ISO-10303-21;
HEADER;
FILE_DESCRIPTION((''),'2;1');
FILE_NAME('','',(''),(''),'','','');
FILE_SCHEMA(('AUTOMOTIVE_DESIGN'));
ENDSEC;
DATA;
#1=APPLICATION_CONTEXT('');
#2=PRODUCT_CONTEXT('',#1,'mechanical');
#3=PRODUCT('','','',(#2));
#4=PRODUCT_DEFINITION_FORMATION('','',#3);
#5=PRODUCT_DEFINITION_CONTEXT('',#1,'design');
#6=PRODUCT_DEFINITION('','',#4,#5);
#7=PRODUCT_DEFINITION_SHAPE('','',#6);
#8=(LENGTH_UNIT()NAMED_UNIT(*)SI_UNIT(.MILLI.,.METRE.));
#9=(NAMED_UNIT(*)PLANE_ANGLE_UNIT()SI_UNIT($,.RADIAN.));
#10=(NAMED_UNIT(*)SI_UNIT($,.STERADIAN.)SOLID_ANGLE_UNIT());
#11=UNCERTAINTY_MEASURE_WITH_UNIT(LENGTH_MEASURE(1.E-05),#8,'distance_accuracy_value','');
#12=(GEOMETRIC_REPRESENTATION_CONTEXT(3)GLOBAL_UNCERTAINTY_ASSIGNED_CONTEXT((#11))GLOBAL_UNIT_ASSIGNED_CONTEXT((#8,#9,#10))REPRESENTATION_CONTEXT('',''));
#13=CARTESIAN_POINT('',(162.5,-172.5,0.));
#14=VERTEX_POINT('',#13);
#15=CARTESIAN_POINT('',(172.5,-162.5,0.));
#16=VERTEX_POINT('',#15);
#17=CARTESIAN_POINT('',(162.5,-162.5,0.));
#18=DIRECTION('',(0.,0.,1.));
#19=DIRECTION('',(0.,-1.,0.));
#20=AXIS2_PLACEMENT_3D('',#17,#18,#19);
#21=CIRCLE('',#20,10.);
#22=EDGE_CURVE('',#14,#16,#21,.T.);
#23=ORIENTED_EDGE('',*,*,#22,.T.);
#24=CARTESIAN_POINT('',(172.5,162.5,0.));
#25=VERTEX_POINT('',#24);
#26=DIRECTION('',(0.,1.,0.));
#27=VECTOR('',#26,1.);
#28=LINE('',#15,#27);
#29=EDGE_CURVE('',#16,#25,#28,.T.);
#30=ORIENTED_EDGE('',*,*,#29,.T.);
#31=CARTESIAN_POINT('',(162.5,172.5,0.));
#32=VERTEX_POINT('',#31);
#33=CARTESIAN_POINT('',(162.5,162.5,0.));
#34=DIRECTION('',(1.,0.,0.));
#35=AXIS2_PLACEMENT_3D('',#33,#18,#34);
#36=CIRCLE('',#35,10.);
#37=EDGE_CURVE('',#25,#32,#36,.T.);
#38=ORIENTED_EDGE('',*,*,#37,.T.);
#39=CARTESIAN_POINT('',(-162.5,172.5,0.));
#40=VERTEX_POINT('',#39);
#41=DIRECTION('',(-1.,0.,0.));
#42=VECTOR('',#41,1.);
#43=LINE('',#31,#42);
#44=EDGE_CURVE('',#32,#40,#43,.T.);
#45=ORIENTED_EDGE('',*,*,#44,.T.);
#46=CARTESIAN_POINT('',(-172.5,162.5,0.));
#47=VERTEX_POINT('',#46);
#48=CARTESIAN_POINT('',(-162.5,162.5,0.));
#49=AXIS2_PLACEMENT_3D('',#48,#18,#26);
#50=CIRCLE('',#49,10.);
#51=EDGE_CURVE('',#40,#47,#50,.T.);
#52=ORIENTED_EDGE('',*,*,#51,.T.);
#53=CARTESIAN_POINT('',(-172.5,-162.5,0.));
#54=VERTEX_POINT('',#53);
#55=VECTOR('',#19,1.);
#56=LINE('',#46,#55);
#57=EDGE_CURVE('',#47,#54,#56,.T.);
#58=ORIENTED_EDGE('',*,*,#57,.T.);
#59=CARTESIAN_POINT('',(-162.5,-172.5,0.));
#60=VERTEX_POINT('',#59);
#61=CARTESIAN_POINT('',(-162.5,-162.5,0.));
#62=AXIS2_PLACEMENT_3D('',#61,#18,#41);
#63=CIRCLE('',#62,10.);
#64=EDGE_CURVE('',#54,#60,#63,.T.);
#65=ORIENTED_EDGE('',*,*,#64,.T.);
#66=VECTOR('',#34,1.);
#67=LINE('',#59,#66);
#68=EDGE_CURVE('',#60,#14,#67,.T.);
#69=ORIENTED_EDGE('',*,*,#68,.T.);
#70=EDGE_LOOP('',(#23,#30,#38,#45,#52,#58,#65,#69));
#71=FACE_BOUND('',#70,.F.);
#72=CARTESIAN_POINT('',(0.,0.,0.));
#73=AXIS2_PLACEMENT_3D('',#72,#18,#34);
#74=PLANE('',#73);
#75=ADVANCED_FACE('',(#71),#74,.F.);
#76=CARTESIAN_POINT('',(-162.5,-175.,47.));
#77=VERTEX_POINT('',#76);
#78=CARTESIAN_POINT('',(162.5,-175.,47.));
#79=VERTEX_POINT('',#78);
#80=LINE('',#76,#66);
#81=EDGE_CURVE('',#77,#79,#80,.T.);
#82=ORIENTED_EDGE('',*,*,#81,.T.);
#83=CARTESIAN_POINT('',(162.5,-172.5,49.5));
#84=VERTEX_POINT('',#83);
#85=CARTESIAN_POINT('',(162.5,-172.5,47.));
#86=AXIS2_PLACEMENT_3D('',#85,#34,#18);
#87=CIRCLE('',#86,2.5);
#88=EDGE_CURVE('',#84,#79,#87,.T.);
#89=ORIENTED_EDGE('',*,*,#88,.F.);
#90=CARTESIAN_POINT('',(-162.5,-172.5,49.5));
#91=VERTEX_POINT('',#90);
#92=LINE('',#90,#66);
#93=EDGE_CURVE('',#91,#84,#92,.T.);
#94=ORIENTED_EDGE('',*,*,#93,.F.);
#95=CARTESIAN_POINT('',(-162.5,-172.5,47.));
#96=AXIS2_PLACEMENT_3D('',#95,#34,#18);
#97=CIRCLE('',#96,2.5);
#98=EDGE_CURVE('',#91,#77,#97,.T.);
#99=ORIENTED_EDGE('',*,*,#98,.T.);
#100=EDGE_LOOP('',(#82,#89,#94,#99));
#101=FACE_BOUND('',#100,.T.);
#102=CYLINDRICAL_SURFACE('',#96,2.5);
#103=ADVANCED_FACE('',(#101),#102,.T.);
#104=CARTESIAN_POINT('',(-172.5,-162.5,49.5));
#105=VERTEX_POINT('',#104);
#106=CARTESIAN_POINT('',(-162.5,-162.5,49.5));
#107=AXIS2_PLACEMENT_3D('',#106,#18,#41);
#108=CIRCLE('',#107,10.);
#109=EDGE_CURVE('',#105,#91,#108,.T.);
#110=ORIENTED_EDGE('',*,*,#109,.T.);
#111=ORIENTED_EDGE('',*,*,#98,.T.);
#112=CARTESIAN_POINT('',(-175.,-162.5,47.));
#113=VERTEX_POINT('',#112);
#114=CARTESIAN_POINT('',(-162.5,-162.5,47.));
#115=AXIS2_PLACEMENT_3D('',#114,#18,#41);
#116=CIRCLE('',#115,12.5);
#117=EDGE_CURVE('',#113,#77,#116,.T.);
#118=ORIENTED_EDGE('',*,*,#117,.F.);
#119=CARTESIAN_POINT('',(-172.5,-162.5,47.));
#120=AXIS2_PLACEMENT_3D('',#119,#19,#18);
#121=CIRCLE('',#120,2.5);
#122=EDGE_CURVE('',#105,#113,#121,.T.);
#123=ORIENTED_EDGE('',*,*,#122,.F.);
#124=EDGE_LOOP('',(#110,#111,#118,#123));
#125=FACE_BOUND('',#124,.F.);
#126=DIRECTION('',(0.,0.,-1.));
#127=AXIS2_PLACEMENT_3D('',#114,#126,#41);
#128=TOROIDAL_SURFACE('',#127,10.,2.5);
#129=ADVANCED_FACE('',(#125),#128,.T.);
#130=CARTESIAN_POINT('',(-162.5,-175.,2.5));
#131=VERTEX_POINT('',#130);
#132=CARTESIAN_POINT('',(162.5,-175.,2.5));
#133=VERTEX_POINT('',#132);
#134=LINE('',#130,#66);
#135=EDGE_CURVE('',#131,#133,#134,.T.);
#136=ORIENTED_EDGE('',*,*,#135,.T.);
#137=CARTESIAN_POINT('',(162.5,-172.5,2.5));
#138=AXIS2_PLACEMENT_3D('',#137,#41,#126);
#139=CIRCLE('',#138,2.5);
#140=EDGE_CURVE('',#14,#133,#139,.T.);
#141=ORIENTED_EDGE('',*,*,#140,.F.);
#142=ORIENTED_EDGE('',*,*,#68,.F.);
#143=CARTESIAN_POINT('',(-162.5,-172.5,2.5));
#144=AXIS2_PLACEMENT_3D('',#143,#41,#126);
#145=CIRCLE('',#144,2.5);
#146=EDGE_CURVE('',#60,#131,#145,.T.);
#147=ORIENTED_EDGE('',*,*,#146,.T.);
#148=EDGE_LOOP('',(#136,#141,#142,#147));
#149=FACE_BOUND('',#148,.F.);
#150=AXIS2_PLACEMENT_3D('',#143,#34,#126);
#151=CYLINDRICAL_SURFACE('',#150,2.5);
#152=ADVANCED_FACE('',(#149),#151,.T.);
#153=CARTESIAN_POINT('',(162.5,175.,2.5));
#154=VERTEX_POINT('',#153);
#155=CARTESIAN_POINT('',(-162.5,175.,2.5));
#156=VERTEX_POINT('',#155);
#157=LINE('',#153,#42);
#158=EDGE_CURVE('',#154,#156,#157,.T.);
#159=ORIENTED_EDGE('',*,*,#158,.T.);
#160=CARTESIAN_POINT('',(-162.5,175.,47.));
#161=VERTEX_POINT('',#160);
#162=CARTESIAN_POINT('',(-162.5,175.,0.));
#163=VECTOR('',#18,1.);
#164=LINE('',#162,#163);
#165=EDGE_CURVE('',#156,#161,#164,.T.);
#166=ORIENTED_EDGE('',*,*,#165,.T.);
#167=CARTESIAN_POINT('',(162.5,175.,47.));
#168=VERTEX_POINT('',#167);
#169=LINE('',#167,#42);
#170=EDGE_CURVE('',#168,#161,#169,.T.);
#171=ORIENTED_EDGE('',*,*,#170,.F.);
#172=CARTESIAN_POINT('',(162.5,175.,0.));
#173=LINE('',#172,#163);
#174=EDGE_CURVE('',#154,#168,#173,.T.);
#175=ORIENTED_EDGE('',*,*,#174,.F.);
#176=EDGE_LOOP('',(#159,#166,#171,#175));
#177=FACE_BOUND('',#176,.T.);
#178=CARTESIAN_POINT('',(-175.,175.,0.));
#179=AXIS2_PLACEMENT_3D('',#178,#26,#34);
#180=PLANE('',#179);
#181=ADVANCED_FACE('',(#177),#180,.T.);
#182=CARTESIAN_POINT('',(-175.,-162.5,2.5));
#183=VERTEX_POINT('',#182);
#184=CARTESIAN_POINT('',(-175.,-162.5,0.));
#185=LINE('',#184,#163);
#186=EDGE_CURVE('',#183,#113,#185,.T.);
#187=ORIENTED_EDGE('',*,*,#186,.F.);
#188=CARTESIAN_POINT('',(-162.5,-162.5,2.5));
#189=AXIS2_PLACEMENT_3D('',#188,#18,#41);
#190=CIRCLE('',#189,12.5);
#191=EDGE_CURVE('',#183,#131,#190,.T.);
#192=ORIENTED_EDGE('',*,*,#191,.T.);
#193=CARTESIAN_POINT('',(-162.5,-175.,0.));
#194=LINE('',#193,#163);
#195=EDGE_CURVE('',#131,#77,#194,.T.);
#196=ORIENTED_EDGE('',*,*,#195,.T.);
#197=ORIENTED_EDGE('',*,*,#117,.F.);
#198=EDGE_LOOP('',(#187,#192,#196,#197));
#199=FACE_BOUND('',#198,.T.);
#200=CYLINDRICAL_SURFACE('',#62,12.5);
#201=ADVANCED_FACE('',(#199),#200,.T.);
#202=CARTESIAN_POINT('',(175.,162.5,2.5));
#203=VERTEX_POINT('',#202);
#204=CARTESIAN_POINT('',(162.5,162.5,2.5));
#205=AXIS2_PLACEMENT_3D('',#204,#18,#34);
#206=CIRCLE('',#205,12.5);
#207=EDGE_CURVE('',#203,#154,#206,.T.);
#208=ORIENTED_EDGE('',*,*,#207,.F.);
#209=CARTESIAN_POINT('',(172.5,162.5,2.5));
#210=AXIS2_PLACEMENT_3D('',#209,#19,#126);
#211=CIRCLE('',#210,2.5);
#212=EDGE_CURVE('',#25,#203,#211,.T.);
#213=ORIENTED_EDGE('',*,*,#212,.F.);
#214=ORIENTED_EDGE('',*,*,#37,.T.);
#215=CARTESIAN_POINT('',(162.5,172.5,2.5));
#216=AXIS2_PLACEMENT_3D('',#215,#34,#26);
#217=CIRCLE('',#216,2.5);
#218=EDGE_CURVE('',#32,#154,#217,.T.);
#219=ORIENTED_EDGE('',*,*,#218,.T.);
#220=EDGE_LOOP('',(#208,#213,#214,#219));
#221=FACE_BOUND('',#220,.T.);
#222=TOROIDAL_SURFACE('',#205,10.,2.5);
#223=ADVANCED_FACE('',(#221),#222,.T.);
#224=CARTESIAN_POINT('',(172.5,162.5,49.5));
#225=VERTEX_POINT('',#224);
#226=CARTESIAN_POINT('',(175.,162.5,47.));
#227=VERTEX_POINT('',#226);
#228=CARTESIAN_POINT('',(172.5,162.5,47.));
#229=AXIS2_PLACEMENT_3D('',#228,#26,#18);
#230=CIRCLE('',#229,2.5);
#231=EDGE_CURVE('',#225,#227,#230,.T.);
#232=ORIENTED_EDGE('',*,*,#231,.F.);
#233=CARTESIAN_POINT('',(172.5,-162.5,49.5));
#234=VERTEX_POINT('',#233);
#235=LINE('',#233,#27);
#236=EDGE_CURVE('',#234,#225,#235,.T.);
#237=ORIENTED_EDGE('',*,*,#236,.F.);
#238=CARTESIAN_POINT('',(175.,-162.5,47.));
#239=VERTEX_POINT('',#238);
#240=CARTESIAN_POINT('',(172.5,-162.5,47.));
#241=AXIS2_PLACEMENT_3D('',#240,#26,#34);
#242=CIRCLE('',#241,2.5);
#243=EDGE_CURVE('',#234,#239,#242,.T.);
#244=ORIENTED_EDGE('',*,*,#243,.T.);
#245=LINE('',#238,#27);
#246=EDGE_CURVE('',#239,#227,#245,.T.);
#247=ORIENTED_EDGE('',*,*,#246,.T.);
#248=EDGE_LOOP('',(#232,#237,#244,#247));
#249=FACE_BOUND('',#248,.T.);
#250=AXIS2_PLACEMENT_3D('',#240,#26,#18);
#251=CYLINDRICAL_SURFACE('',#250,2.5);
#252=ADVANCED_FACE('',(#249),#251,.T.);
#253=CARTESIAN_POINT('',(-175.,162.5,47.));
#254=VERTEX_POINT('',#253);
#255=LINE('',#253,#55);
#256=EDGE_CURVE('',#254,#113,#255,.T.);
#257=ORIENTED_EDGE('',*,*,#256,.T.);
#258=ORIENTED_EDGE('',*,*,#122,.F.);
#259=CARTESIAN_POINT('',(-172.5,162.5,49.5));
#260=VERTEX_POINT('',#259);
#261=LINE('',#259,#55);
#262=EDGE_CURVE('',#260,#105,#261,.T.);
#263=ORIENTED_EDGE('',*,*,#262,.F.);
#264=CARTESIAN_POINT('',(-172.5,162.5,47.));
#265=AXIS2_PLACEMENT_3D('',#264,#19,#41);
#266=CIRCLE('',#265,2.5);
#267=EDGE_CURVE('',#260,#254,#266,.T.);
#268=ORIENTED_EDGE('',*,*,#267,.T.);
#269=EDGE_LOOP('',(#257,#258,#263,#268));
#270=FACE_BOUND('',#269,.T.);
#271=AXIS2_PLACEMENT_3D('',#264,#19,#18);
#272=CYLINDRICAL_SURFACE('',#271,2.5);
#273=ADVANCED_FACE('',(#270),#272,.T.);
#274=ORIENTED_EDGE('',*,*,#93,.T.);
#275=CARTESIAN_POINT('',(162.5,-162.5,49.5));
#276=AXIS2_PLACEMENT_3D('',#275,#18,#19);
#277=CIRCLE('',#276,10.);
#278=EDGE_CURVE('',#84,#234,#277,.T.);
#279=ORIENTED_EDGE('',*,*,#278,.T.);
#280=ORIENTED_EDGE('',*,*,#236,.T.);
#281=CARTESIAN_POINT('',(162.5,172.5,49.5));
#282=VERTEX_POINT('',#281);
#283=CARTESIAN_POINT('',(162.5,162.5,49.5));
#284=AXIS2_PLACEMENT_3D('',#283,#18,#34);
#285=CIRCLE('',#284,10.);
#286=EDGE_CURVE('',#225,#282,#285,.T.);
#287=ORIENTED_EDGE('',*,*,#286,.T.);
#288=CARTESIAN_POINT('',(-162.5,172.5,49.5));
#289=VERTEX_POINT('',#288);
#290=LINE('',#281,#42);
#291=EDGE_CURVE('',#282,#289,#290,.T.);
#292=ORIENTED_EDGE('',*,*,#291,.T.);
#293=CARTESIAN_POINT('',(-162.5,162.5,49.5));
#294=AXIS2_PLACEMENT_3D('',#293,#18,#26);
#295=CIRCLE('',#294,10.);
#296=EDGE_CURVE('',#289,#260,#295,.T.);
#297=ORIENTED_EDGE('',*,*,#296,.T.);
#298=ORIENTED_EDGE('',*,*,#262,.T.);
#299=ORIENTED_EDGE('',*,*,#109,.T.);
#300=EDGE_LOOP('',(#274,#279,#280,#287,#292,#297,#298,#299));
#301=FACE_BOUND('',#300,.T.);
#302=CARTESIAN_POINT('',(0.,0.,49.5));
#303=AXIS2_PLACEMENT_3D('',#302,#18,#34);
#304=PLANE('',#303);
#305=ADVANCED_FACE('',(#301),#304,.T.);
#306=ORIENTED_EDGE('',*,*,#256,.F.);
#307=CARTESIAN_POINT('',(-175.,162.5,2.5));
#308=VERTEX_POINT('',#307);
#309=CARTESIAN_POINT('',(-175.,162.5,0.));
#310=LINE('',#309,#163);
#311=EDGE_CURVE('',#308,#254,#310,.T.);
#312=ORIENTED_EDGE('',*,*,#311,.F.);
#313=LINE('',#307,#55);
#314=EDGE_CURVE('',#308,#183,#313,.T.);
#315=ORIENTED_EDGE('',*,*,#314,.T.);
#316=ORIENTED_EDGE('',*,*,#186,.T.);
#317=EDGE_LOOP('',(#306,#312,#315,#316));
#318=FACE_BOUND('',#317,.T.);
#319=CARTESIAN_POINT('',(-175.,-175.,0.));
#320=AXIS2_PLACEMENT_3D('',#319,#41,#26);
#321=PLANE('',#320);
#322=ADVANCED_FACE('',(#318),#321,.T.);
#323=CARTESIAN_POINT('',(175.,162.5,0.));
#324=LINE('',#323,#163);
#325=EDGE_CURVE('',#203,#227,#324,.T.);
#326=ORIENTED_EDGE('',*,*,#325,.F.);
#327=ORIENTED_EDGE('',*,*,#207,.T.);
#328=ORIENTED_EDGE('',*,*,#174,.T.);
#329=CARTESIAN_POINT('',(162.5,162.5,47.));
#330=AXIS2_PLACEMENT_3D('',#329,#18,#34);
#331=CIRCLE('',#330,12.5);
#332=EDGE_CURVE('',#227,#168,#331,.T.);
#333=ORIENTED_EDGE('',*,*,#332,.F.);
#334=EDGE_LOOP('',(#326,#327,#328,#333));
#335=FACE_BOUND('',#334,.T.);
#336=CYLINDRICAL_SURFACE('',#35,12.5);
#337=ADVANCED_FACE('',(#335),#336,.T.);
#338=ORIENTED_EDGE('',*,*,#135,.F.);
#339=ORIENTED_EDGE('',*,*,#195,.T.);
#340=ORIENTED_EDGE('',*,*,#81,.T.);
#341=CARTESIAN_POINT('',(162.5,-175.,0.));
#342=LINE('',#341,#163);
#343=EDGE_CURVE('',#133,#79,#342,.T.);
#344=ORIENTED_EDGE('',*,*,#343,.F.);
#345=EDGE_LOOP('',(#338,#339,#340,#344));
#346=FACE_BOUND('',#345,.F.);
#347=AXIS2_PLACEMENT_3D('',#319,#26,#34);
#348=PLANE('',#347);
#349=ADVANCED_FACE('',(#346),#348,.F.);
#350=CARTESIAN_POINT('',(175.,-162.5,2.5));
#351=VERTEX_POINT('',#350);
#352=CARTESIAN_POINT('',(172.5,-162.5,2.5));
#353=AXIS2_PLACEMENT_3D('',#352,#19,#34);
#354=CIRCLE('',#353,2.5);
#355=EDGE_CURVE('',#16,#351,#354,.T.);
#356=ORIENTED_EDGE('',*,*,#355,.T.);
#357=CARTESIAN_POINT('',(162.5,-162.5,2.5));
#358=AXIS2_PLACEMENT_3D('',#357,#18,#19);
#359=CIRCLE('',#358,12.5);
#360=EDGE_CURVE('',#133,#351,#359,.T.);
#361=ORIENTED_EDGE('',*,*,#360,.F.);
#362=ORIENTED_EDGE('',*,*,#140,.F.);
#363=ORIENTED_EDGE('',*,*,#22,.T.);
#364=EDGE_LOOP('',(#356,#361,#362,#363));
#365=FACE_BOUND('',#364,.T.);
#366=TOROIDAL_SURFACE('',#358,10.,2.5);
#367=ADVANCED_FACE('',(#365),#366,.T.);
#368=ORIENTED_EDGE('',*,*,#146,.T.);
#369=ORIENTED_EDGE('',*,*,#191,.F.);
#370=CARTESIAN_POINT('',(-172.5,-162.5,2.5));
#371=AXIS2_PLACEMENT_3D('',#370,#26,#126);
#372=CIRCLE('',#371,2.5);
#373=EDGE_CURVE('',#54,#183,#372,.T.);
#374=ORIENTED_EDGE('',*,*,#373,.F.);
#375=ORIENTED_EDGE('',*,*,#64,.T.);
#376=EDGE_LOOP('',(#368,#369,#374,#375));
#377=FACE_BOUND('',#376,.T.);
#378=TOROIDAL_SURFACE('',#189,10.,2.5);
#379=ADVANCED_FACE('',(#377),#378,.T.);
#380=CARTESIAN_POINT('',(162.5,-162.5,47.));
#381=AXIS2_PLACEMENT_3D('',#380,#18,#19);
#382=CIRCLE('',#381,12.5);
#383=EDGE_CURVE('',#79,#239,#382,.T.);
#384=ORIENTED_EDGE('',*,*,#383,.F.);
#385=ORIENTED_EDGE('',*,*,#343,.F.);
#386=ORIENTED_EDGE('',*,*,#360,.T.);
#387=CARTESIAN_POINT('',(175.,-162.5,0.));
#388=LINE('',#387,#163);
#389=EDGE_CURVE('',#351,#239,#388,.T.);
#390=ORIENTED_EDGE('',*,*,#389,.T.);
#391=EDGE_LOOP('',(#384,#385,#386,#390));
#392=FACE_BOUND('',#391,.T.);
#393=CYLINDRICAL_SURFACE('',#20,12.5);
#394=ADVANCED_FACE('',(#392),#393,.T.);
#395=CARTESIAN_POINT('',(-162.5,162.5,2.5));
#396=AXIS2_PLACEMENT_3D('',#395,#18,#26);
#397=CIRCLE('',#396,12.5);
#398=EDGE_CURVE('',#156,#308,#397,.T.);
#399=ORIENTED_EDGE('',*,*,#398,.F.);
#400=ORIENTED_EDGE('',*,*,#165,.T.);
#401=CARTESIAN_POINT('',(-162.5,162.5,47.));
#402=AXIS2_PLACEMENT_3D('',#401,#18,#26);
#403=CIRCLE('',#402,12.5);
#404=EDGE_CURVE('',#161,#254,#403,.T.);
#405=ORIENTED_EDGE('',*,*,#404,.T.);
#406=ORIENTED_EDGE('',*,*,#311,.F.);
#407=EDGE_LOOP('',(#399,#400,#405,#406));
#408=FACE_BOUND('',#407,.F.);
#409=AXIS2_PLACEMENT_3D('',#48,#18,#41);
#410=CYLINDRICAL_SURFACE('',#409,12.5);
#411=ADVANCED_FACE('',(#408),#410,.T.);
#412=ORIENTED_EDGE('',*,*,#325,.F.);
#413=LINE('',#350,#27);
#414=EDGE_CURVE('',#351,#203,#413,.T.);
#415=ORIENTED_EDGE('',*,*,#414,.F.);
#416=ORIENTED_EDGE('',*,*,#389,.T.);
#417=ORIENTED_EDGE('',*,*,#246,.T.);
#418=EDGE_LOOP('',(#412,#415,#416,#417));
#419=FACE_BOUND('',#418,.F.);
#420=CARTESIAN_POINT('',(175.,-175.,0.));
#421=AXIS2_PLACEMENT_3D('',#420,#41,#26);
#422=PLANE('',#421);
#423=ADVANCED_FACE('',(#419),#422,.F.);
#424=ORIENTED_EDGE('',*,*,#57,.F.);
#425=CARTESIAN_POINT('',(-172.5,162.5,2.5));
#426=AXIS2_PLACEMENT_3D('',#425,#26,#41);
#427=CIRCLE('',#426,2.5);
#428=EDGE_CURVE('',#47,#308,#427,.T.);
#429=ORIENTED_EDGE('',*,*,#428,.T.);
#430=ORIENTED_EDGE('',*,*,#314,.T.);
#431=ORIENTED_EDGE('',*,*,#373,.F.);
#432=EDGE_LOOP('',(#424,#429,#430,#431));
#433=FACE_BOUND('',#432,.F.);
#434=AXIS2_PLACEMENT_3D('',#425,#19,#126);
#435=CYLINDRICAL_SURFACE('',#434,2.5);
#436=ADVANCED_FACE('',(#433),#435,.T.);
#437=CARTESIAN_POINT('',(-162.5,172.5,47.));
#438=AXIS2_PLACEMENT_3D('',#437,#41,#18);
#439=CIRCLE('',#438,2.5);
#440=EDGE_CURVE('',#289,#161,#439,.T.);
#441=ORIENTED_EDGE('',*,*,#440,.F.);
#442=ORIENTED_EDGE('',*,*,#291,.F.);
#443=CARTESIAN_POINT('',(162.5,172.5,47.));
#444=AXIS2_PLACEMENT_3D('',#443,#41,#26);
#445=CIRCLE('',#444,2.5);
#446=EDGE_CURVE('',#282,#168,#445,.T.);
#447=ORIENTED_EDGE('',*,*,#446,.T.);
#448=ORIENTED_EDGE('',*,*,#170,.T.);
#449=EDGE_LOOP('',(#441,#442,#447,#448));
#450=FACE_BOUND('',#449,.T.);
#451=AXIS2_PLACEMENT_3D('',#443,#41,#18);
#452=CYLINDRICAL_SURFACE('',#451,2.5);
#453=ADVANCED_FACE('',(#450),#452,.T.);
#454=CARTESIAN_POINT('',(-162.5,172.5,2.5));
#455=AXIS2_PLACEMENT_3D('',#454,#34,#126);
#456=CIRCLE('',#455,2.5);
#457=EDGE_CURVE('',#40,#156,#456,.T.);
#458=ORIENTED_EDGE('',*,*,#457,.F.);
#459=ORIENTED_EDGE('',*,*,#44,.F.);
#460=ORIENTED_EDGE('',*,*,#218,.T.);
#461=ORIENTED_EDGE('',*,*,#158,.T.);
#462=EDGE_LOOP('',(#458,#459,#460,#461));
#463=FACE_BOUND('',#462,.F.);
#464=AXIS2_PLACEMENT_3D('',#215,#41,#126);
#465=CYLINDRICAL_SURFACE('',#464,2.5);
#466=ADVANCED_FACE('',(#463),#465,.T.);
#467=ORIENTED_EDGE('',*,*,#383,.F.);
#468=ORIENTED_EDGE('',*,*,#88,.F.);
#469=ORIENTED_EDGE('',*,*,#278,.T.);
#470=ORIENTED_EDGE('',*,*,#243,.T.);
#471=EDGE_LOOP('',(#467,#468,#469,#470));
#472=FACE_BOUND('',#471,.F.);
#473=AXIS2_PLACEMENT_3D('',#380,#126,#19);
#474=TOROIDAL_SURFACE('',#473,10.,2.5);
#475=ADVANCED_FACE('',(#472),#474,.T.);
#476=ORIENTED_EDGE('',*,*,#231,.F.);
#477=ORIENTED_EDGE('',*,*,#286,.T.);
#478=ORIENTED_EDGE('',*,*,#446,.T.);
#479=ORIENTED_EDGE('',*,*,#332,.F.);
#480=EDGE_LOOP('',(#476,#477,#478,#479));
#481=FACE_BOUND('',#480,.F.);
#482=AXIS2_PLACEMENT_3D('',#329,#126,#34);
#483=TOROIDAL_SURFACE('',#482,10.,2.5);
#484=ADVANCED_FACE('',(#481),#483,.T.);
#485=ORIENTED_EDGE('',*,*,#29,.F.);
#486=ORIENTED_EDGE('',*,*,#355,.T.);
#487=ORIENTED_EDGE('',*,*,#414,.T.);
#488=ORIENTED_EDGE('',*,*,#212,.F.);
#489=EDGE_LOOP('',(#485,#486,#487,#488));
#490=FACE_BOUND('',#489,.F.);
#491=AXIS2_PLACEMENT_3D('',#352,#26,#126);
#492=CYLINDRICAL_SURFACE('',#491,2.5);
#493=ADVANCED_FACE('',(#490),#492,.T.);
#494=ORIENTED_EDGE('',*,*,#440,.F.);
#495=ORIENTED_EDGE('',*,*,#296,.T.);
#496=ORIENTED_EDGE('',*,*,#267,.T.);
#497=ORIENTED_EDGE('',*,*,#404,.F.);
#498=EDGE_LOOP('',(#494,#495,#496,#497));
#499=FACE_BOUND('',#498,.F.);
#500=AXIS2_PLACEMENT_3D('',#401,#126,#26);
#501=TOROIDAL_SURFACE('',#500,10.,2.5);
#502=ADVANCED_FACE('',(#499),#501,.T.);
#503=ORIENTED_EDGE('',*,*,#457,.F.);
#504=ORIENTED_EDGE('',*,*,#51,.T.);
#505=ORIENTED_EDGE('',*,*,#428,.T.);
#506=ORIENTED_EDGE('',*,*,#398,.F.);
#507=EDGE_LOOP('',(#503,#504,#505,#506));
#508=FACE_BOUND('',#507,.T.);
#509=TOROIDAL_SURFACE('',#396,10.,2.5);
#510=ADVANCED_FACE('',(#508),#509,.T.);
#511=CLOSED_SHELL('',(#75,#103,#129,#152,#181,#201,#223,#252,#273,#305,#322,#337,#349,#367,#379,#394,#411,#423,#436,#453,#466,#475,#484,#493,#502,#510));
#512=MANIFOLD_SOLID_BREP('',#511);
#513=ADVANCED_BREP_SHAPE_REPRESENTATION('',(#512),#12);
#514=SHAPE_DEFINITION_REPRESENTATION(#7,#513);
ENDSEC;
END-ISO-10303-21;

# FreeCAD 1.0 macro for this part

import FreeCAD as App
import Part
import Sketcher

V = App.Vector
Q = App.Units.Quantity


def edges_at(feature, points):
    """Names of the edges that pass closest to the given points."""
    edges = feature.Shape.Edges
    near = lambda p: min(range(len(edges)), key=lambda i: edges[i].distToShape(Part.Vertex(*p))[0])
    return sorted({f"Edge{near(p) + 1}" for p in points})

doc = App.newDocument("Part")
body = doc.addObject("PartDesign::Body", "Body")

# Sketch on XY plane
sketch1 = doc.addObject("Sketcher::SketchObject", "Sketch")
body.addObject(sketch1)
sketch1.AttachmentSupport = (doc.XY_Plane, [""])
sketch1.MapMode = "FlatFace"
sketch1.addGeometry(Part.LineSegment(V(-175, 175, 0), V(-175, -175, 0)), False)
sketch1.addGeometry(Part.LineSegment(V(-175, -175, 0), V(175, -175, 0)), False)
sketch1.addGeometry(Part.LineSegment(V(175, -175, 0), V(175, 175, 0)), False)
sketch1.addGeometry(Part.LineSegment(V(175, 175, 0), V(-175, 175, 0)), False)
sketch1.addConstraint(Sketcher.Constraint("Coincident", 0, 2, 1, 1))
sketch1.addConstraint(Sketcher.Constraint("Coincident", 1, 2, 2, 1))
sketch1.addConstraint(Sketcher.Constraint("Coincident", 2, 2, 3, 1))
sketch1.addConstraint(Sketcher.Constraint("Coincident", 3, 2, 0, 1))
sketch1.addConstraint(Sketcher.Constraint("Vertical", 0))
sketch1.addConstraint(Sketcher.Constraint("Horizontal", 1))
sketch1.addConstraint(Sketcher.Constraint("Vertical", 2))
sketch1.addConstraint(Sketcher.Constraint("Horizontal", 3))
sketch1.addConstraint(Sketcher.Constraint("Symmetric", 0, 2, 2, 2, -1, 1))
sketch1.addConstraint(Sketcher.Constraint("Equal", 3, 0))
sketch1.addConstraint(Sketcher.Constraint("DistanceX", 1, 1, 1, 2, Q("350 mm")))
pad1 = doc.addObject("PartDesign::Pad", "Pad")
body.addObject(pad1)
pad1.Profile = sketch1
pad1.Length = 49.5
doc.recompute()

fillet = doc.addObject("PartDesign::Fillet", "Fillet")
body.addObject(fillet)
fillet.Base = (pad1, edges_at(pad1, [
    (175, -175, 24.75),
    (175, 175, 24.75),
    (-175, 175, 24.75),
    (-175, -175, 24.75),
]))
fillet.Radius = 12.5
doc.recompute()

fillet2 = doc.addObject("PartDesign::Fillet", "Fillet001")
body.addObject(fillet2)
fillet2.Base = (fillet, edges_at(fillet, [(0, -175, 0), (0, -175, 49.5)]))
fillet2.Radius = 2.5

doc.recompute()
